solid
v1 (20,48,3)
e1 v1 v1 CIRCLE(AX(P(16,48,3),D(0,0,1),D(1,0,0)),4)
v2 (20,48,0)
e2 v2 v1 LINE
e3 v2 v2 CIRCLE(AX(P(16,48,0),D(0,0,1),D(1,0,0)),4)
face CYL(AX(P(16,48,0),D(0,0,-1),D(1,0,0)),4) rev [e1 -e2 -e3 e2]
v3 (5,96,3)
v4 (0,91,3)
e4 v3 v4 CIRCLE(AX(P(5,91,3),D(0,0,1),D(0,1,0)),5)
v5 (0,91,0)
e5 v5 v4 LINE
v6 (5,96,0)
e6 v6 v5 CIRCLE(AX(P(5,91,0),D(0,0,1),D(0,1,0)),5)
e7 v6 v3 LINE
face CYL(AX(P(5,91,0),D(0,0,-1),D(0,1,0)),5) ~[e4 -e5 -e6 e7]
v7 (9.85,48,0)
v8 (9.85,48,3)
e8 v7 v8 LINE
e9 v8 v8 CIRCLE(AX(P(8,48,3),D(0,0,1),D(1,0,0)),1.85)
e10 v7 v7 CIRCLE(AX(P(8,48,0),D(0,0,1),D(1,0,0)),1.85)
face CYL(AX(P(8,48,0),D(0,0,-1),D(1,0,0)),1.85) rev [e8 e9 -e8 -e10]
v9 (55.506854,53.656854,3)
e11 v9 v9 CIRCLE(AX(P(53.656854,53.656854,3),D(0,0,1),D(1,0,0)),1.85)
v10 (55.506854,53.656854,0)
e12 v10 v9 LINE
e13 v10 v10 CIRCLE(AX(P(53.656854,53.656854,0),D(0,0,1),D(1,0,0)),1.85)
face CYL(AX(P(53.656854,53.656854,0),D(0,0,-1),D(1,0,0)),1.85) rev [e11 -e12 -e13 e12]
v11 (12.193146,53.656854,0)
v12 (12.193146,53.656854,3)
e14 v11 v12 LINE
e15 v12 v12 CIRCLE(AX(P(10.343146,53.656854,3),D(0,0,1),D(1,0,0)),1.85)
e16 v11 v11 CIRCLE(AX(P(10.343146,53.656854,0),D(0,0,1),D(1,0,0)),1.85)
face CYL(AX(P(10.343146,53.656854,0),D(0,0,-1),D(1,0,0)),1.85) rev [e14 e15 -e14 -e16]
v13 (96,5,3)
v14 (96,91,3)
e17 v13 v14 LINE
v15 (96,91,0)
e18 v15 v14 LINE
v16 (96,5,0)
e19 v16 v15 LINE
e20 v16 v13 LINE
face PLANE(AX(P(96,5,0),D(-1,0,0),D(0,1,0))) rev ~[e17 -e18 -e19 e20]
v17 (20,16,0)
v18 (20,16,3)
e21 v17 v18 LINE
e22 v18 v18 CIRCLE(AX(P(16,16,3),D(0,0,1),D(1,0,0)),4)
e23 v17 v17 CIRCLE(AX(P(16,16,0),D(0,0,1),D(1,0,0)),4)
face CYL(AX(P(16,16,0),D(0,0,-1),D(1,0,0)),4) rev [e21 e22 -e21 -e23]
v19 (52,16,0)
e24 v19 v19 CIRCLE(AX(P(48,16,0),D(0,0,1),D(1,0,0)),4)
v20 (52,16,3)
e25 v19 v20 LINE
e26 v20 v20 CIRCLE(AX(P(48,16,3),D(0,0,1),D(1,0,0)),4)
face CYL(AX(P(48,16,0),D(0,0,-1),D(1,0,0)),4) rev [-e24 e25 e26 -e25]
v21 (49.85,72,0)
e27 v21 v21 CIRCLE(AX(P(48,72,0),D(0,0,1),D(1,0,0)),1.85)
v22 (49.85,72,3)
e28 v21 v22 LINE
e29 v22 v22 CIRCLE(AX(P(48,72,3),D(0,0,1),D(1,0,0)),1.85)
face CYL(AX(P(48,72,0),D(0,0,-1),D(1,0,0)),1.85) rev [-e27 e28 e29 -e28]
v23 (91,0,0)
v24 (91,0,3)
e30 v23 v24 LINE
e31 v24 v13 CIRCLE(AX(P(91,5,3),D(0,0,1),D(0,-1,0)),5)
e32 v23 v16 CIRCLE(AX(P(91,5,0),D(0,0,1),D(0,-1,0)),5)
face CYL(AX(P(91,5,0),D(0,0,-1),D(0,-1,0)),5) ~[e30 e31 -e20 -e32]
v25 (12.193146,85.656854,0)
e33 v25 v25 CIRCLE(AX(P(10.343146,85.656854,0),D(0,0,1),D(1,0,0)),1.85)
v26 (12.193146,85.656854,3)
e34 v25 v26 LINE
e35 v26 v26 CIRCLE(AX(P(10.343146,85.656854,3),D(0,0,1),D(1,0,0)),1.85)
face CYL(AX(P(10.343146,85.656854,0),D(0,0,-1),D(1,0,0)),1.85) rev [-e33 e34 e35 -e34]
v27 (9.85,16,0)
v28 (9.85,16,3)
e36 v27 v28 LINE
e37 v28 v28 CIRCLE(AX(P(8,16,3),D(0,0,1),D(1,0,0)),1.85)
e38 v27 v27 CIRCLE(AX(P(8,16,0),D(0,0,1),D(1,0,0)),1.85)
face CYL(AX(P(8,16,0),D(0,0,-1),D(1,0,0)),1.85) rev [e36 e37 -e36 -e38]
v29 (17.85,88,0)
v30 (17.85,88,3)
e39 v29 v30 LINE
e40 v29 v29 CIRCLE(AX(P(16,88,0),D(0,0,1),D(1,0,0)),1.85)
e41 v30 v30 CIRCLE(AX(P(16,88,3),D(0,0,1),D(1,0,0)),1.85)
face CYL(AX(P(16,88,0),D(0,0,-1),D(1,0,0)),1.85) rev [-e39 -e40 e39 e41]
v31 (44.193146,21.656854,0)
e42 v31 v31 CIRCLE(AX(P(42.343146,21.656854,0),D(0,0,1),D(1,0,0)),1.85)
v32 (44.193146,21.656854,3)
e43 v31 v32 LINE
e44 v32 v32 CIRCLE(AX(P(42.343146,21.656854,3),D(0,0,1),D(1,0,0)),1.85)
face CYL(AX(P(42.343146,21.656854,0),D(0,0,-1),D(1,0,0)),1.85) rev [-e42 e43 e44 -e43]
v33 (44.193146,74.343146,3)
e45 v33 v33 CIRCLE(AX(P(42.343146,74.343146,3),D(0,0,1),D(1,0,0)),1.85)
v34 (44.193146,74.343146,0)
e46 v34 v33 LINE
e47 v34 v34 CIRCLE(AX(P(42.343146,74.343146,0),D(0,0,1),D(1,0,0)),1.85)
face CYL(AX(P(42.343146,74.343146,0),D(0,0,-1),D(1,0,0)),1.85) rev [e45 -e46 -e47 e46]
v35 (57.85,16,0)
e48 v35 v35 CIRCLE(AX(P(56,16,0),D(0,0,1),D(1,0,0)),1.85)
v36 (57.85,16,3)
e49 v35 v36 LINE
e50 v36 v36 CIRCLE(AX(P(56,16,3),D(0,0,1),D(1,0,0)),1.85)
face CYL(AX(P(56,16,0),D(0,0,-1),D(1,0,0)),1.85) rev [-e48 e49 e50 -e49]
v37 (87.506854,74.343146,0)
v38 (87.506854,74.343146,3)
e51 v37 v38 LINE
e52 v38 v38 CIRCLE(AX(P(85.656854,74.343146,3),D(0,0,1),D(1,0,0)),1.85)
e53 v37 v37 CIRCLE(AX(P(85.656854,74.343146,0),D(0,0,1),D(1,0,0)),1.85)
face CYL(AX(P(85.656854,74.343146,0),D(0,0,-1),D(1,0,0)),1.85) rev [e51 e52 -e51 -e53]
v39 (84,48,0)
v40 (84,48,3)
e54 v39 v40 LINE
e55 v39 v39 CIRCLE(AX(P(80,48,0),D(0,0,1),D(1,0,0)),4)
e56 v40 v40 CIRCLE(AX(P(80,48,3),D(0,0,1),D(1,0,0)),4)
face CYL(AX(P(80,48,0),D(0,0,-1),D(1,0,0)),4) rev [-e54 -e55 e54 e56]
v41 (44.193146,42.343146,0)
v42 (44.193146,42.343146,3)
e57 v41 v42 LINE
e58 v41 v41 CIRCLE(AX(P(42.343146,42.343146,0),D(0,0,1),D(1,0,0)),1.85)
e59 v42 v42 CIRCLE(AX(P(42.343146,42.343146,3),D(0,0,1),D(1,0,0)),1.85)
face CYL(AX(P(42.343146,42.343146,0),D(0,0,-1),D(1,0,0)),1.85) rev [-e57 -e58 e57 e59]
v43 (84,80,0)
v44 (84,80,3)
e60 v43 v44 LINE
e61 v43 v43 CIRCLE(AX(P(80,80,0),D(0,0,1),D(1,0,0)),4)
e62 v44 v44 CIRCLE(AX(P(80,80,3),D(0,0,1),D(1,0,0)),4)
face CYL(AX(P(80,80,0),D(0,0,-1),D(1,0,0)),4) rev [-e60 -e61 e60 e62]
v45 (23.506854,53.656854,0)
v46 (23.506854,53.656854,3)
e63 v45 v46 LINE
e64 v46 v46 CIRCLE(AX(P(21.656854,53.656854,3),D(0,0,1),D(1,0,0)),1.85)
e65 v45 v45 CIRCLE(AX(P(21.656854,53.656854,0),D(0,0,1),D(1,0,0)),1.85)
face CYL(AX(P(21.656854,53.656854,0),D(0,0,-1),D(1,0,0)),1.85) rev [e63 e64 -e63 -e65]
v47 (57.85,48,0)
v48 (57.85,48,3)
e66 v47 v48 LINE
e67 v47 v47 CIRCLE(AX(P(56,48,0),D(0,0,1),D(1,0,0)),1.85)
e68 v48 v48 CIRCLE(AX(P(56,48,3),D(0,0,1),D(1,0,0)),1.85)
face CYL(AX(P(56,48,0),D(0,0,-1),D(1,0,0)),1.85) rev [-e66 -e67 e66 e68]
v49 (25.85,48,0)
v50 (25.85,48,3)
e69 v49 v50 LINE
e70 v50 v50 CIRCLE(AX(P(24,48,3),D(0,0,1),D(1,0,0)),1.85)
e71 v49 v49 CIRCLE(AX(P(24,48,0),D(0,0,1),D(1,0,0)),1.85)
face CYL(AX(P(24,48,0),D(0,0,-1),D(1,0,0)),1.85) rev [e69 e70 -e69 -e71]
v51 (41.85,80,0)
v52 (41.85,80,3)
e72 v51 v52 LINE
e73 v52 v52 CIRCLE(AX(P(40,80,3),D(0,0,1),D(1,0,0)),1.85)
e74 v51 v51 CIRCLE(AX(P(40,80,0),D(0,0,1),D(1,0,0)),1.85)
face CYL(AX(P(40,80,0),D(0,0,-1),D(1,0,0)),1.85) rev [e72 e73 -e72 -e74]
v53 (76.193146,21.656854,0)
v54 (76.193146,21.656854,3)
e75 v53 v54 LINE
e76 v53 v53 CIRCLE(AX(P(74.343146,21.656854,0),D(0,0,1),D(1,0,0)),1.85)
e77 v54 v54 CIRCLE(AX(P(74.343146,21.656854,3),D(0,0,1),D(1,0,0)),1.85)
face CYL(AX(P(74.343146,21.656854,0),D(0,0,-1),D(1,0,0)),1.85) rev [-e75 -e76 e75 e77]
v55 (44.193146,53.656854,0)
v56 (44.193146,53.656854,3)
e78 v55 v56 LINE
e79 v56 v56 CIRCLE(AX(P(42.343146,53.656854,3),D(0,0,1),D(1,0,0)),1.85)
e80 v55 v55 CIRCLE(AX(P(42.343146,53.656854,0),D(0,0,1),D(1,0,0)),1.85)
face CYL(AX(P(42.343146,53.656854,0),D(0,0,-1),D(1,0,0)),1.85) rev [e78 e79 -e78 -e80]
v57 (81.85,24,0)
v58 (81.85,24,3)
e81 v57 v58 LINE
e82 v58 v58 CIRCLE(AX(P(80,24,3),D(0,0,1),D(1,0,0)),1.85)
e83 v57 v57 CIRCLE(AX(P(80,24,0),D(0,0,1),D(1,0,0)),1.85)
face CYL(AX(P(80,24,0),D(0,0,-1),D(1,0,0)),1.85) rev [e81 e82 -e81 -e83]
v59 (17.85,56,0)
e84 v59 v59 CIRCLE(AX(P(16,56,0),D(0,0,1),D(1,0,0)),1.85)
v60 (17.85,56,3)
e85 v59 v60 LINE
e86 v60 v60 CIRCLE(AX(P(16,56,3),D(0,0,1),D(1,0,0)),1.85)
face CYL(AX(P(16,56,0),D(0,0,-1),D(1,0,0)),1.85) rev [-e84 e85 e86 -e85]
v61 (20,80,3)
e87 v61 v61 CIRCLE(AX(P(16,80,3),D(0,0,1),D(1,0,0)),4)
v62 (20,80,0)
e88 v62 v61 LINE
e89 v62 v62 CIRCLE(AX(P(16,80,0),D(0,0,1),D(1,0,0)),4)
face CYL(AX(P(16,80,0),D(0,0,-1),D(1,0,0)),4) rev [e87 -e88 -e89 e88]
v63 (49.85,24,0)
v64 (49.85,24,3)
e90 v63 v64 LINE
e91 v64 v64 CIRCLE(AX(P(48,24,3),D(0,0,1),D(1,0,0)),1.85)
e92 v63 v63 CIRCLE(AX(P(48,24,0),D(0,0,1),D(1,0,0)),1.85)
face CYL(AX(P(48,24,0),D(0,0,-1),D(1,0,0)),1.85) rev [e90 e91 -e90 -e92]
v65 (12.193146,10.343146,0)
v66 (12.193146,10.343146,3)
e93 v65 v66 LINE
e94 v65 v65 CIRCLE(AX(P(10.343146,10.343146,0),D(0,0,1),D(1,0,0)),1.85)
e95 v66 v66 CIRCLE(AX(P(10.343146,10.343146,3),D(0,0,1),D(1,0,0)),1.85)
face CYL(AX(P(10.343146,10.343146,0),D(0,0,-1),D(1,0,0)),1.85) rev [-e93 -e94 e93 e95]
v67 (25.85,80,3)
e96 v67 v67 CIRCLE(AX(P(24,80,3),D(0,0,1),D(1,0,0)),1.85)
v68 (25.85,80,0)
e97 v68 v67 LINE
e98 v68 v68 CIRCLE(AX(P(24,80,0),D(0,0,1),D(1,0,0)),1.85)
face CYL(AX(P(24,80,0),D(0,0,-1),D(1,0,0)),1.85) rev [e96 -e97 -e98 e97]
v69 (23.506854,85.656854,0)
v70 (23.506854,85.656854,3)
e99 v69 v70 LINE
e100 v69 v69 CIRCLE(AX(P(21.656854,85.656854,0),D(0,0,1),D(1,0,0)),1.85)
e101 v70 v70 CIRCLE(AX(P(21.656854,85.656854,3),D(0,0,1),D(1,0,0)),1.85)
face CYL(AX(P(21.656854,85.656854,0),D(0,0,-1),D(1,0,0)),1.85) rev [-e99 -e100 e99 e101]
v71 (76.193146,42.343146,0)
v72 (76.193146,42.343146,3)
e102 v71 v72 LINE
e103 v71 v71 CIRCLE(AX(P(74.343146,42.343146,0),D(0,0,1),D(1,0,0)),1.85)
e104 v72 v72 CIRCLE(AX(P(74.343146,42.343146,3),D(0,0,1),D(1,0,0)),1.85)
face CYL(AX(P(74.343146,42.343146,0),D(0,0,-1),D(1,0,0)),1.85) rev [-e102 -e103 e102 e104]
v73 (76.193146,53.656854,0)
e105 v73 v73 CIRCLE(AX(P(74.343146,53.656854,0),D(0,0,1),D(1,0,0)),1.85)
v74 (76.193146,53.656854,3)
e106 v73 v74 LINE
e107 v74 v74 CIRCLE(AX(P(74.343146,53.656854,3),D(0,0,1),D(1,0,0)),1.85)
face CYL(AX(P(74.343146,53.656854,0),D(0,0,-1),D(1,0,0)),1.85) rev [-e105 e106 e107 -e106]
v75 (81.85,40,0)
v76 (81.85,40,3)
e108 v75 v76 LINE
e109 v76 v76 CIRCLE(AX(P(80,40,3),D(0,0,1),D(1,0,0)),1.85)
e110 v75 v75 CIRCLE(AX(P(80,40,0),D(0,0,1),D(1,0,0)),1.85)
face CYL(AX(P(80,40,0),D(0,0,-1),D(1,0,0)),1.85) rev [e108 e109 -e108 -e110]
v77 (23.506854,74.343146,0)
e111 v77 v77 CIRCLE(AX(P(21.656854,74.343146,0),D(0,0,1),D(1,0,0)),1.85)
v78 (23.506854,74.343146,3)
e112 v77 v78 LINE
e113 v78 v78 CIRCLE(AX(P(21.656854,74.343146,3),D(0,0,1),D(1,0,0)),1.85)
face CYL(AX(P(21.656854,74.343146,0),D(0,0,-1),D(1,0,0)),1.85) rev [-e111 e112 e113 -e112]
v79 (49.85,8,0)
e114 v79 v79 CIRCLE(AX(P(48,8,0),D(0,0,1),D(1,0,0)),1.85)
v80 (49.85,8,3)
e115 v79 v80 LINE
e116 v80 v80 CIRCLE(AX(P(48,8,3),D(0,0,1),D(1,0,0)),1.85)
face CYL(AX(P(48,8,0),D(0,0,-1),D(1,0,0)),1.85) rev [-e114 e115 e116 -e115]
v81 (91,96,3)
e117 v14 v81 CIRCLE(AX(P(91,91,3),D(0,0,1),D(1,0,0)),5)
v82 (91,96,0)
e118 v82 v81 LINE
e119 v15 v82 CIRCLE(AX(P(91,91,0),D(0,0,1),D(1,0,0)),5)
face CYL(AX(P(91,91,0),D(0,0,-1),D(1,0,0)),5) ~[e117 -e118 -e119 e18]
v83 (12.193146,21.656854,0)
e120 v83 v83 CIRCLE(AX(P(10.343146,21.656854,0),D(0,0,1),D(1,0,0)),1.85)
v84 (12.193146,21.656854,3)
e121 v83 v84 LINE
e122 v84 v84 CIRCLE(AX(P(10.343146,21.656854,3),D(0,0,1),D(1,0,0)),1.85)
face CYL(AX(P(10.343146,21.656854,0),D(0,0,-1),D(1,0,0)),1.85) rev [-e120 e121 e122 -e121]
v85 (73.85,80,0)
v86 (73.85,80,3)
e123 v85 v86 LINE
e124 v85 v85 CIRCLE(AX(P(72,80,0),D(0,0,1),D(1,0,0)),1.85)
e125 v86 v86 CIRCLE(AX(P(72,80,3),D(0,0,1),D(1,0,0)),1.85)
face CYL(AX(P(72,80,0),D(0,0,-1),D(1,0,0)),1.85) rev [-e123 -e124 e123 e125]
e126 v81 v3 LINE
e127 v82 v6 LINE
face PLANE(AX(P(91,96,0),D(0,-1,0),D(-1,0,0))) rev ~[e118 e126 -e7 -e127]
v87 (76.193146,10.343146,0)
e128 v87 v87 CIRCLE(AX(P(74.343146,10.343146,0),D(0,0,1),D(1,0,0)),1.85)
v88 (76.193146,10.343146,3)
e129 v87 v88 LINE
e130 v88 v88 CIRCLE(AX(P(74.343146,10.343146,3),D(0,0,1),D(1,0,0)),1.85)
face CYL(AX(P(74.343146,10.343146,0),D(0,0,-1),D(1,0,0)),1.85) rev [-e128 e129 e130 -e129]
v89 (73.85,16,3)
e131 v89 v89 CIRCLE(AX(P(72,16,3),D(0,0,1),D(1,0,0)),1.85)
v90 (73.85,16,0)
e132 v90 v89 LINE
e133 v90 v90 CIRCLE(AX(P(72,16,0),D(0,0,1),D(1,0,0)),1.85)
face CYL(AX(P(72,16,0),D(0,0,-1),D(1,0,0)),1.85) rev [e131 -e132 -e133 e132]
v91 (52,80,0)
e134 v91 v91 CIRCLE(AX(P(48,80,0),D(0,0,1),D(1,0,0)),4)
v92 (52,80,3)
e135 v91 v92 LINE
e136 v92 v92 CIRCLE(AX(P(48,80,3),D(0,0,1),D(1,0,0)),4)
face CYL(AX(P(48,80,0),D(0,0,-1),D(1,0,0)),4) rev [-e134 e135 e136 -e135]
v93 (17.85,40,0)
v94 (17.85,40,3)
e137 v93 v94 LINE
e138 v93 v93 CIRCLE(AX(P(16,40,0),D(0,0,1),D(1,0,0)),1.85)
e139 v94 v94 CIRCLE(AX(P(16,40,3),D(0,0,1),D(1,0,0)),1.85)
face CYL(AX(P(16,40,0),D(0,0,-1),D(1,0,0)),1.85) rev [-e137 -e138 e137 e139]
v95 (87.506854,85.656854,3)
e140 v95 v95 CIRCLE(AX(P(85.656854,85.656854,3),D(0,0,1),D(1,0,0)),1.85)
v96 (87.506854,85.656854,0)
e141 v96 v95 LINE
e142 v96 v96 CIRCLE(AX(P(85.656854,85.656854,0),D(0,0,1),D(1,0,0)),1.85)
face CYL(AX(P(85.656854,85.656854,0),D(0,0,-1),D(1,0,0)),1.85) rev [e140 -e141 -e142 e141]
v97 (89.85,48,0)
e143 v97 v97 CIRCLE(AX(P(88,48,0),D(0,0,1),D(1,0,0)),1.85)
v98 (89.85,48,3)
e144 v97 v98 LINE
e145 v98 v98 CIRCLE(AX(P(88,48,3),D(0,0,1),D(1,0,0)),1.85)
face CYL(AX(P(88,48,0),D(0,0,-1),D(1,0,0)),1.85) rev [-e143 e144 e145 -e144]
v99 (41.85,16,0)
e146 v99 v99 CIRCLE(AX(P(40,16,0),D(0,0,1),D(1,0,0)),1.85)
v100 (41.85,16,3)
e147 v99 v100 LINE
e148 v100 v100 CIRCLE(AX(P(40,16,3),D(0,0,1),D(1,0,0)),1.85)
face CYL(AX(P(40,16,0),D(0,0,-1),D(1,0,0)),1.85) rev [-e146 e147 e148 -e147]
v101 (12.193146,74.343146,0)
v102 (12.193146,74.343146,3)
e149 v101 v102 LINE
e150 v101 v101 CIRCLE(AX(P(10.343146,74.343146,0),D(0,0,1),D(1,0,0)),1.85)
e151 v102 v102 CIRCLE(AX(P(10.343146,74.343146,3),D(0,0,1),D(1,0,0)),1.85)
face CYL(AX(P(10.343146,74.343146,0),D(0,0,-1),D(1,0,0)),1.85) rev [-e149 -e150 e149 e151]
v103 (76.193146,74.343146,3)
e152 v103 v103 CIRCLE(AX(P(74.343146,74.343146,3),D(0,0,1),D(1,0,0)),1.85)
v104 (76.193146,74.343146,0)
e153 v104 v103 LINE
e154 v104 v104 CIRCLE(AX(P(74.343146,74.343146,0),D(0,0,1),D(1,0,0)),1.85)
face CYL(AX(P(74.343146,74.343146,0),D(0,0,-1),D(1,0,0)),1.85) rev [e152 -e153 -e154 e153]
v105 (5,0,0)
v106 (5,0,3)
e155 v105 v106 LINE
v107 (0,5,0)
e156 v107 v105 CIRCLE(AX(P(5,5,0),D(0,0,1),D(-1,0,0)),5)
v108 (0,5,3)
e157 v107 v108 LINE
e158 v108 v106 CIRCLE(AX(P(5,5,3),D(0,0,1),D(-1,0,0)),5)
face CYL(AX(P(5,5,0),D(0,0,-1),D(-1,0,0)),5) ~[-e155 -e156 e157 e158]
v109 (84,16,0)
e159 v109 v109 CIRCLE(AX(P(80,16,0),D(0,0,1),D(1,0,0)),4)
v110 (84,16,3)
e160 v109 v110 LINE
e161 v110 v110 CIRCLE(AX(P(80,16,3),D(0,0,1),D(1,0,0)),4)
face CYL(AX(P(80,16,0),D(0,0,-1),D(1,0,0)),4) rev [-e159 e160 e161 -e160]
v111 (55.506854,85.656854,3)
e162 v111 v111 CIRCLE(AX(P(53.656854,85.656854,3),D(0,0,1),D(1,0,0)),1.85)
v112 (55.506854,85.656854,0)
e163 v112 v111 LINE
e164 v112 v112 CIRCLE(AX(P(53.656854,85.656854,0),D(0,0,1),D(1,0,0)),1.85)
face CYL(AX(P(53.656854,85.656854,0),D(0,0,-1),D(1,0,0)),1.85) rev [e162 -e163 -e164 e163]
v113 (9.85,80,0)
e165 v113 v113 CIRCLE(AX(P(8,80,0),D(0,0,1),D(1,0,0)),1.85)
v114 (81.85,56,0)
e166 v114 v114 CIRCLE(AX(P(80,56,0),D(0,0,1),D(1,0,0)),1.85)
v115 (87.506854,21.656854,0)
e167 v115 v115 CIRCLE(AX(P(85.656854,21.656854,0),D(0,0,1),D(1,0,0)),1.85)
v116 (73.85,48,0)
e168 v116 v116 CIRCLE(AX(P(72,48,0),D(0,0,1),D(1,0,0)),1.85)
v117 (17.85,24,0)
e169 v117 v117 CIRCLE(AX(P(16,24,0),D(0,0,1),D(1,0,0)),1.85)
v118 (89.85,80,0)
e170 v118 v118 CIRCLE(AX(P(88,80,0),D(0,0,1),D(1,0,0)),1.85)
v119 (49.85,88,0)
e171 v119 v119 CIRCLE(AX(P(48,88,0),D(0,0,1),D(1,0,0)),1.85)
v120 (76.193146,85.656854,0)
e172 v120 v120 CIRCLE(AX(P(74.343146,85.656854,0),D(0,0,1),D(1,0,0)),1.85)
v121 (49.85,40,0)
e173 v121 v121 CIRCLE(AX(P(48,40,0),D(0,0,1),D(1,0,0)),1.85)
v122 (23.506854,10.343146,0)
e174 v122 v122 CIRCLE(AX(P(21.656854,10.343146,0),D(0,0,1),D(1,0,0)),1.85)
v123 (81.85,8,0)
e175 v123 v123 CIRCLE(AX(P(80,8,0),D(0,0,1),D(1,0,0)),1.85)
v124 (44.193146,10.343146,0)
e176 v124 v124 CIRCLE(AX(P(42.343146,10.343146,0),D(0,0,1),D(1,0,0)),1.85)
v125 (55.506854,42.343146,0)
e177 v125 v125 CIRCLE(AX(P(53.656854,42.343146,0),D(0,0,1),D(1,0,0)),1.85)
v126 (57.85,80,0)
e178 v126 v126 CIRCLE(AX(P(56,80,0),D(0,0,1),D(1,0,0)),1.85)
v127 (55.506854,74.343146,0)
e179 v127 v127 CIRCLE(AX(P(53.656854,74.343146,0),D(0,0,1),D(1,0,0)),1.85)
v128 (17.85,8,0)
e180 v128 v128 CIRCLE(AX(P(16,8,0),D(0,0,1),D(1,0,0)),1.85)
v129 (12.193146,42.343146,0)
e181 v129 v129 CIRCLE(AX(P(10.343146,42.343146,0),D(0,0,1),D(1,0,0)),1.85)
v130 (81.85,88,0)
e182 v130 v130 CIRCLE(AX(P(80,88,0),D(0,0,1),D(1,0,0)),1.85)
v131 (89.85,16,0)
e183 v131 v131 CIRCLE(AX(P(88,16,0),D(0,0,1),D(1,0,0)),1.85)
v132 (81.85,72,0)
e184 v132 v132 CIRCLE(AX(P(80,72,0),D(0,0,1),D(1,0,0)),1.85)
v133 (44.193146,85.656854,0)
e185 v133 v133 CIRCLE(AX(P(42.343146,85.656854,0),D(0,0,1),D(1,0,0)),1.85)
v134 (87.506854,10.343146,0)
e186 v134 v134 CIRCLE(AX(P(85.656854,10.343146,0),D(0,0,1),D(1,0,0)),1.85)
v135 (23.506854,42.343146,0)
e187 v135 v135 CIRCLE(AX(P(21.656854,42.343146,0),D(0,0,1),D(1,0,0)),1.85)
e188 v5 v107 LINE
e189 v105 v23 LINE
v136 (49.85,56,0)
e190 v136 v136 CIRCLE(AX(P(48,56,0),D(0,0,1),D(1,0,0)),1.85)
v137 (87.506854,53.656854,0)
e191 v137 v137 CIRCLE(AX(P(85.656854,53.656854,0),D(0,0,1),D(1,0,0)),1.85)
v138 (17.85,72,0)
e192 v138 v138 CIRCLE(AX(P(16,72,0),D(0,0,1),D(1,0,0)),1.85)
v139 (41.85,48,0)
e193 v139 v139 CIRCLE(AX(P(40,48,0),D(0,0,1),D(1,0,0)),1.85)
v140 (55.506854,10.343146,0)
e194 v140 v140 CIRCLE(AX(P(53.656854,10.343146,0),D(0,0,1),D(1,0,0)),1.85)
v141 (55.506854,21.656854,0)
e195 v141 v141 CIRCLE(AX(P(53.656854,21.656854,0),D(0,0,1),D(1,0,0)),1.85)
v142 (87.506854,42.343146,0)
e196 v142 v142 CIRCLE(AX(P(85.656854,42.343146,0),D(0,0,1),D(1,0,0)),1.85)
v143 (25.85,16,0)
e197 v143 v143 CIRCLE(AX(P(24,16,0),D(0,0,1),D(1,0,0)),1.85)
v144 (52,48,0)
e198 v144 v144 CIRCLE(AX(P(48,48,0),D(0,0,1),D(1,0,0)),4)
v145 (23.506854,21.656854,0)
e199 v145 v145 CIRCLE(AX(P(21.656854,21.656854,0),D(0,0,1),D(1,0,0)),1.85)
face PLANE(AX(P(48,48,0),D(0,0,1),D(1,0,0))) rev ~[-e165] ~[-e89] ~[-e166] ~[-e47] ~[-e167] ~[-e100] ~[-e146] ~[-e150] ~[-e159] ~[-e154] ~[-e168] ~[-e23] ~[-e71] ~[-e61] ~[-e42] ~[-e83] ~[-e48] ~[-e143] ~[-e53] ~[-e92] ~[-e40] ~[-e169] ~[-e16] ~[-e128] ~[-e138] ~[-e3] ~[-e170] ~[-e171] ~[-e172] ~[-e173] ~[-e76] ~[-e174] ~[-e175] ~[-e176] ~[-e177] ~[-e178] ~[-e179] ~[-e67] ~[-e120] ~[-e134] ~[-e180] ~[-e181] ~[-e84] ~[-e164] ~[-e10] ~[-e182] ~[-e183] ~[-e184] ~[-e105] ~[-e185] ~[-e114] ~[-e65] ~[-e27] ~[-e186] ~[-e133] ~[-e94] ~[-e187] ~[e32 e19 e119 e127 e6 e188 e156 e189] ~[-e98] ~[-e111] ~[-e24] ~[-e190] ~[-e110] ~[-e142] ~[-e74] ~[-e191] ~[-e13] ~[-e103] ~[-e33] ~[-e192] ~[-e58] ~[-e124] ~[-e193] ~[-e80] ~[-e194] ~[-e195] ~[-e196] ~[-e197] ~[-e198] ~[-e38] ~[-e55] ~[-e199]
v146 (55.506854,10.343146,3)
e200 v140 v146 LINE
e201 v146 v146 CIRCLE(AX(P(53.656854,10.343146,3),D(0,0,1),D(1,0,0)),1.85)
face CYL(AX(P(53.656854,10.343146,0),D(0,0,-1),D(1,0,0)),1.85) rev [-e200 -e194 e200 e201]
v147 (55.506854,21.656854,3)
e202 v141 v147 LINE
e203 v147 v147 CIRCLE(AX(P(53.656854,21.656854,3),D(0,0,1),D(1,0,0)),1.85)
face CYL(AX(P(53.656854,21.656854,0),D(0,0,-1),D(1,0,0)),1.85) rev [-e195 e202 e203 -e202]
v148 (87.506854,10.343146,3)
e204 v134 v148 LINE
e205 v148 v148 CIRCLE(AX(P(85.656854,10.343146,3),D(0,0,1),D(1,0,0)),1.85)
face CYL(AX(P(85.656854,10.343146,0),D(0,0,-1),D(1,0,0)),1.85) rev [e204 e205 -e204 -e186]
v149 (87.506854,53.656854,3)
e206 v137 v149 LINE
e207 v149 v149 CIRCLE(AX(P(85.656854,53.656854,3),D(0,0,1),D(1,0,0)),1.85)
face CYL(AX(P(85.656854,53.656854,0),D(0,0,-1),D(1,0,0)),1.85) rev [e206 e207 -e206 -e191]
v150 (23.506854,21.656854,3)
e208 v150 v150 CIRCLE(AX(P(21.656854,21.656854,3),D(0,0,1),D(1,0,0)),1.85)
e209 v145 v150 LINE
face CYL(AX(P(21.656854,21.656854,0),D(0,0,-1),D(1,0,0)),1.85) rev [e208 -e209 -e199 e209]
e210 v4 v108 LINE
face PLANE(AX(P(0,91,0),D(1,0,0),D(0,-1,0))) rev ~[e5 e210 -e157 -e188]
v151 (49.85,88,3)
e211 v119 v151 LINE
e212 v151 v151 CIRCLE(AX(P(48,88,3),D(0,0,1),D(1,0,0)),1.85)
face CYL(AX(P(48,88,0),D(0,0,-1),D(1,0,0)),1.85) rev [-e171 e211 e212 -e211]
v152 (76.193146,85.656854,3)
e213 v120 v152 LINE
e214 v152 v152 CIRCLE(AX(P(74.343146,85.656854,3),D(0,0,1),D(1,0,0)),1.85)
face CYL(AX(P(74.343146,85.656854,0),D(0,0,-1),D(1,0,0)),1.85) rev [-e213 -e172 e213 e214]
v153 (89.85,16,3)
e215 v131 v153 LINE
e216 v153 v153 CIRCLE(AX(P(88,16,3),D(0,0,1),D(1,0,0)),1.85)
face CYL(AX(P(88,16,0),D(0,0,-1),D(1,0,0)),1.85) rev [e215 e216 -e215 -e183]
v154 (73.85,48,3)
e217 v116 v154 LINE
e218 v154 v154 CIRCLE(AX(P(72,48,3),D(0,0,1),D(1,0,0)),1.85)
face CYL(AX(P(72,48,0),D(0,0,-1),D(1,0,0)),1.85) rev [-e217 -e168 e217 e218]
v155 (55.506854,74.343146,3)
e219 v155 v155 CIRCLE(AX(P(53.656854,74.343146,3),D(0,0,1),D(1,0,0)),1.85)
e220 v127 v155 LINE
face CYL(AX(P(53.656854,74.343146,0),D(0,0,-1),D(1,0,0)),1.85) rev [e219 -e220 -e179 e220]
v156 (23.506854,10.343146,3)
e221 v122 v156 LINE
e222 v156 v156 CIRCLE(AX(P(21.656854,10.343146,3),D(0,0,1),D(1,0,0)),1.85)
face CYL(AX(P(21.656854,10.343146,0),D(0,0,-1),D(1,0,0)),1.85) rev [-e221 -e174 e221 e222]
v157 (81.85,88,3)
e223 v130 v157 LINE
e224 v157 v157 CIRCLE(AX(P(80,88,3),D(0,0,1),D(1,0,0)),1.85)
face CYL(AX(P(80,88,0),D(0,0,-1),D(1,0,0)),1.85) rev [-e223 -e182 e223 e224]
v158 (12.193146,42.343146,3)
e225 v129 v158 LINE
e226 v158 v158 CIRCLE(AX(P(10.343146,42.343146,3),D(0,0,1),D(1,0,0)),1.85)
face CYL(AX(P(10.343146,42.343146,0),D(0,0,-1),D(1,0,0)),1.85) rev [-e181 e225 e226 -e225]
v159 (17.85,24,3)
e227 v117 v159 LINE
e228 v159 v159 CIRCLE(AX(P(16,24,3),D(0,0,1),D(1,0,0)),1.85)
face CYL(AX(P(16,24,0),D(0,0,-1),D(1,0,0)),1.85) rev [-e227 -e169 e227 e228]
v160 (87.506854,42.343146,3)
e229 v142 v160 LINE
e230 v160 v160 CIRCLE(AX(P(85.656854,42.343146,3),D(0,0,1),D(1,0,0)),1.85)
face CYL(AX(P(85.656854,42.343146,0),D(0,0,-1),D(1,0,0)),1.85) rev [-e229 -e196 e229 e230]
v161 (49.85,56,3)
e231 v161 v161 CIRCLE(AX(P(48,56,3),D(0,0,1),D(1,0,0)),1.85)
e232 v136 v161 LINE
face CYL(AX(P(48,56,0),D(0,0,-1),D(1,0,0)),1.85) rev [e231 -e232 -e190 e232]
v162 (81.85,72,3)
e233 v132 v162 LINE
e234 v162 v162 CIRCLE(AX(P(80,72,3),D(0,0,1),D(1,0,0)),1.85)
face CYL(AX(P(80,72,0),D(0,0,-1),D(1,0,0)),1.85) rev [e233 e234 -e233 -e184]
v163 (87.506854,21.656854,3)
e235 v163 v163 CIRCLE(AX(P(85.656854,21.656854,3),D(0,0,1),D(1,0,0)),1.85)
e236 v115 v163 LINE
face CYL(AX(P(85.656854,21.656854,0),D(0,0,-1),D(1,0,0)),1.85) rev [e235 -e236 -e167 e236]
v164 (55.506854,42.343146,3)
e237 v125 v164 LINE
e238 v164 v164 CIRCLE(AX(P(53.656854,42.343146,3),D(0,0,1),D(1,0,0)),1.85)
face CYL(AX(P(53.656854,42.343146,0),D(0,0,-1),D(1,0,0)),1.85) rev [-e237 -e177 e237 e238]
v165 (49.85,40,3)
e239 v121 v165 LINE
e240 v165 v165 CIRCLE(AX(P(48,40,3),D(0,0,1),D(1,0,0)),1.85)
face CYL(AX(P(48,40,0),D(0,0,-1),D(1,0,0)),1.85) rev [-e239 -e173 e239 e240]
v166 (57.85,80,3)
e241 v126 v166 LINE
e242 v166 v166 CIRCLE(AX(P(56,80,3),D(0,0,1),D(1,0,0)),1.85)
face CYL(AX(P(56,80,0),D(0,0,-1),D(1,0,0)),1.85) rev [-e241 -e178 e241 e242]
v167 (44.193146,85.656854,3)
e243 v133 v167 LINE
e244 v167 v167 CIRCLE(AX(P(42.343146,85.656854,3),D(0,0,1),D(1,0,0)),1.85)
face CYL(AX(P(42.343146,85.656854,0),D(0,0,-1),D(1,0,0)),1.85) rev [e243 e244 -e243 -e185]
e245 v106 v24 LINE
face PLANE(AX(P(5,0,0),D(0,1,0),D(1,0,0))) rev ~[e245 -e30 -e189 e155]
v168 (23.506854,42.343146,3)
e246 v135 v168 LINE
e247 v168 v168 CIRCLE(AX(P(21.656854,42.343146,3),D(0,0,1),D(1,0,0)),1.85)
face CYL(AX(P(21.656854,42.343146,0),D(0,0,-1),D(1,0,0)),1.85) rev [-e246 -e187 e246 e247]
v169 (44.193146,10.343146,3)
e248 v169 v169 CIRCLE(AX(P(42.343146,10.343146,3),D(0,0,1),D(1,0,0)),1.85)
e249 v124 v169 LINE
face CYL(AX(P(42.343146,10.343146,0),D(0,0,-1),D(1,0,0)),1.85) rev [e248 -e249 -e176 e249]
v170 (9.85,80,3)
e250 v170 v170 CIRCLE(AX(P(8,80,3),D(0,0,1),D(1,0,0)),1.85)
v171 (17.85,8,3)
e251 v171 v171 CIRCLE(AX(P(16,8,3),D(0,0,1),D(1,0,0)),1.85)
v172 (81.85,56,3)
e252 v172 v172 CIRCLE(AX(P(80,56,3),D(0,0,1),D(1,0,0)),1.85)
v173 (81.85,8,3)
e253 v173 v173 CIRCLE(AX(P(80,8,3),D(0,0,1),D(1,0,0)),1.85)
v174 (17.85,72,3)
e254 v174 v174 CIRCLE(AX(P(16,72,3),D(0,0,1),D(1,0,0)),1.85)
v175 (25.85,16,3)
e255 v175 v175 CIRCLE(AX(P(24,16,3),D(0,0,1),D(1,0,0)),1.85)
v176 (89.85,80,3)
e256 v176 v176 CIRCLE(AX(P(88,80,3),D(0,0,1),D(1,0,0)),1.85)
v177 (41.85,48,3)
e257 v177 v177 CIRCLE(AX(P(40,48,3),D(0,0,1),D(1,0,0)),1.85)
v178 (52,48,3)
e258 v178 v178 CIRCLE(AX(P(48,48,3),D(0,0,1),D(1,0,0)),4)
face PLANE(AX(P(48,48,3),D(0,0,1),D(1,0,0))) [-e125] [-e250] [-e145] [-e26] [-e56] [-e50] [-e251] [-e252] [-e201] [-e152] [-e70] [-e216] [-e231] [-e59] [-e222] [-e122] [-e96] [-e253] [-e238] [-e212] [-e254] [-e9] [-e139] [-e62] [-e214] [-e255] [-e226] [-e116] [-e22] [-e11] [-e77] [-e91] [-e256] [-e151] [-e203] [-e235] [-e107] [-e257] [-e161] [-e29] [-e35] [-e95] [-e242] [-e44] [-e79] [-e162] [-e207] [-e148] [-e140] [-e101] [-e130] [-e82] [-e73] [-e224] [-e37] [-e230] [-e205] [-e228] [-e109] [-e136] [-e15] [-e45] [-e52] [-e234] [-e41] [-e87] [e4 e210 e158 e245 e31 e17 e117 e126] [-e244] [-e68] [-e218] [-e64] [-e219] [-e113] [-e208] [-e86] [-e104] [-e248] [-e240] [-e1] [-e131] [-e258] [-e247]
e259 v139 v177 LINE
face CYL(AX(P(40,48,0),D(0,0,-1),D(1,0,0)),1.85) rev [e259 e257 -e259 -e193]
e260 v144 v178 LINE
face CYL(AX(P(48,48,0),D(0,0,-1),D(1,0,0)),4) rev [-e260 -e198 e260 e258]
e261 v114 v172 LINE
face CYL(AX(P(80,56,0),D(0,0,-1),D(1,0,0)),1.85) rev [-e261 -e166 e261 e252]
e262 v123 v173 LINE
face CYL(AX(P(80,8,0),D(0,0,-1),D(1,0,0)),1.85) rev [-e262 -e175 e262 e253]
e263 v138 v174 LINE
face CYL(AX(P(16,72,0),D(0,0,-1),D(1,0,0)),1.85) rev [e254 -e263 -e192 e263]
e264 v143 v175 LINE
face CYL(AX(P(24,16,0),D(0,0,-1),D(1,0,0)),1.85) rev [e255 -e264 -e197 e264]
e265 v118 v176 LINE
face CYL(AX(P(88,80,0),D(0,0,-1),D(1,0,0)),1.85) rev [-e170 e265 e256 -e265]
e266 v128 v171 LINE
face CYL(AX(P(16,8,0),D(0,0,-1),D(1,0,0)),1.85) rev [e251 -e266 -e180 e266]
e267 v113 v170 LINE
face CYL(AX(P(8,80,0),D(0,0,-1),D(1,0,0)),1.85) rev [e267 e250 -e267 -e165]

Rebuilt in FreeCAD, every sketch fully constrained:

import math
import FreeCAD as App
import Part
import Sketcher

V = App.Vector
Q = App.Units.Quantity

doc = App.newDocument("Part")
body = doc.addObject("PartDesign::Body", "Body")

# Sketch on XY plane
sketch1 = body.newObject("Sketcher::SketchObject", "Sketch")
sketch1.AttachmentSupport = (doc.getObject("XY_Plane"), [""])
sketch1.MapMode = "FlatFace"
sketch1.addGeometry([
    Part.LineSegment(V(91, 96, 0), V(5, 96, 0)),  # 0
    Part.ArcOfCircle(Part.Circle(V(5, 91, 0), V(0, 0, 1), 5), math.radians(90), math.radians(180)),  # 1
    Part.LineSegment(V(0, 91, 0), V(0, 5, 0)),  # 2
    Part.ArcOfCircle(Part.Circle(V(5, 5, 0), V(0, 0, 1), 5), math.radians(180), math.radians(270)),  # 3
    Part.LineSegment(V(5, 0, 0), V(91, 0, 0)),  # 4
    Part.ArcOfCircle(Part.Circle(V(91, 5, 0), V(0, 0, 1), 5), math.radians(-90), math.radians(0)),  # 5
    Part.LineSegment(V(96, 5, 0), V(96, 91, 0)),  # 6
    Part.ArcOfCircle(Part.Circle(V(91, 91, 0), V(0, 0, 1), 5), math.radians(0), math.radians(90)),  # 7
    Part.Circle(V(10.3, 10.3, 0), V(0, 0, 1), 1.9),  # 8
    Part.Circle(V(16, 8, 0), V(0, 0, 1), 1.9),  # 9
    Part.Circle(V(8, 16, 0), V(0, 0, 1), 1.9),  # 10
    Part.Circle(V(16, 16, 0), V(0, 0, 1), 4),  # 11
    Part.Circle(V(21.7, 10.3, 0), V(0, 0, 1), 1.9),  # 12
    Part.Circle(V(24, 16, 0), V(0, 0, 1), 1.9),  # 13
    Part.Circle(V(10.3, 21.7, 0), V(0, 0, 1), 1.9),  # 14
    Part.Circle(V(16, 24, 0), V(0, 0, 1), 1.9),  # 15
    Part.Circle(V(21.7, 21.7, 0), V(0, 0, 1), 1.9),  # 16
    Part.Circle(V(42.3, 10.3, 0), V(0, 0, 1), 1.9),  # 17
    Part.Circle(V(40, 16, 0), V(0, 0, 1), 1.9),  # 18
    Part.Circle(V(42.3, 21.7, 0), V(0, 0, 1), 1.9),  # 19
    Part.Circle(V(10.3, 42.3, 0), V(0, 0, 1), 1.9),  # 20
    Part.Circle(V(16, 40, 0), V(0, 0, 1), 1.9),  # 21
    Part.Circle(V(8, 48, 0), V(0, 0, 1), 1.9),  # 22
    Part.Circle(V(16, 48, 0), V(0, 0, 1), 4),  # 23
    Part.Circle(V(21.7, 42.3, 0), V(0, 0, 1), 1.9),  # 24
    Part.Circle(V(24, 48, 0), V(0, 0, 1), 1.9),  # 25
    Part.Circle(V(42.3, 42.3, 0), V(0, 0, 1), 1.9),  # 26
    Part.Circle(V(40, 48, 0), V(0, 0, 1), 1.9),  # 27
    Part.Circle(V(48, 8, 0), V(0, 0, 1), 1.9),  # 28
    Part.Circle(V(53.7, 10.3, 0), V(0, 0, 1), 1.9),  # 29
    Part.Circle(V(48, 16, 0), V(0, 0, 1), 4),  # 30
    Part.Circle(V(56, 16, 0), V(0, 0, 1), 1.9),  # 31
    Part.Circle(V(53.7, 21.7, 0), V(0, 0, 1), 1.9),  # 32
    Part.Circle(V(48, 24, 0), V(0, 0, 1), 1.9),  # 33
    Part.Circle(V(74.3, 10.3, 0), V(0, 0, 1), 1.9),  # 34
    Part.Circle(V(72, 16, 0), V(0, 0, 1), 1.9),  # 35
    Part.Circle(V(80, 8, 0), V(0, 0, 1), 1.9),  # 36
    Part.Circle(V(85.7, 10.3, 0), V(0, 0, 1), 1.9),  # 37
    Part.Circle(V(80, 16, 0), V(0, 0, 1), 4),  # 38
    Part.Circle(V(88, 16, 0), V(0, 0, 1), 1.9),  # 39
    Part.Circle(V(74.3, 21.7, 0), V(0, 0, 1), 1.9),  # 40
    Part.Circle(V(85.7, 21.7, 0), V(0, 0, 1), 1.9),  # 41
    Part.Circle(V(80, 24, 0), V(0, 0, 1), 1.9),  # 42
    Part.Circle(V(48, 40, 0), V(0, 0, 1), 1.9),  # 43
    Part.Circle(V(53.7, 42.3, 0), V(0, 0, 1), 1.9),  # 44
    Part.Circle(V(48, 48, 0), V(0, 0, 1), 4),  # 45
    Part.Circle(V(56, 48, 0), V(0, 0, 1), 1.9),  # 46
    Part.Circle(V(74.3, 42.3, 0), V(0, 0, 1), 1.9),  # 47
    Part.Circle(V(72, 48, 0), V(0, 0, 1), 1.9),  # 48
    Part.Circle(V(80, 40, 0), V(0, 0, 1), 1.9),  # 49
    Part.Circle(V(85.7, 42.3, 0), V(0, 0, 1), 1.9),  # 50
    Part.Circle(V(80, 48, 0), V(0, 0, 1), 4),  # 51
    Part.Circle(V(88, 48, 0), V(0, 0, 1), 1.9),  # 52
    Part.Circle(V(10.3, 53.7, 0), V(0, 0, 1), 1.9),  # 53
    Part.Circle(V(16, 56, 0), V(0, 0, 1), 1.9),  # 54
    Part.Circle(V(21.7, 53.7, 0), V(0, 0, 1), 1.9),  # 55
    Part.Circle(V(42.3, 53.7, 0), V(0, 0, 1), 1.9),  # 56
    Part.Circle(V(16, 72, 0), V(0, 0, 1), 1.9),  # 57
    Part.Circle(V(10.3, 74.3, 0), V(0, 0, 1), 1.9),  # 58
    Part.Circle(V(21.7, 74.3, 0), V(0, 0, 1), 1.9),  # 59
    Part.Circle(V(8, 80, 0), V(0, 0, 1), 1.9),  # 60
    Part.Circle(V(16, 80, 0), V(0, 0, 1), 4),  # 61
    Part.Circle(V(10.3, 85.7, 0), V(0, 0, 1), 1.9),  # 62
    Part.Circle(V(16, 88, 0), V(0, 0, 1), 1.9),  # 63
    Part.Circle(V(24, 80, 0), V(0, 0, 1), 1.9),  # 64
    Part.Circle(V(21.7, 85.7, 0), V(0, 0, 1), 1.9),  # 65
    Part.Circle(V(42.3, 74.3, 0), V(0, 0, 1), 1.9),  # 66
    Part.Circle(V(40, 80, 0), V(0, 0, 1), 1.9),  # 67
    Part.Circle(V(42.3, 85.7, 0), V(0, 0, 1), 1.9),  # 68
    Part.Circle(V(48, 56, 0), V(0, 0, 1), 1.9),  # 69
    Part.Circle(V(53.7, 53.7, 0), V(0, 0, 1), 1.9),  # 70
    Part.Circle(V(74.3, 53.7, 0), V(0, 0, 1), 1.9),  # 71
    Part.Circle(V(80, 56, 0), V(0, 0, 1), 1.9),  # 72
    Part.Circle(V(85.7, 53.7, 0), V(0, 0, 1), 1.9),  # 73
    Part.Circle(V(48, 72, 0), V(0, 0, 1), 1.9),  # 74
    Part.Circle(V(53.7, 74.3, 0), V(0, 0, 1), 1.9),  # 75
    Part.Circle(V(48, 80, 0), V(0, 0, 1), 4),  # 76
    Part.Circle(V(56, 80, 0), V(0, 0, 1), 1.9),  # 77
    Part.Circle(V(48, 88, 0), V(0, 0, 1), 1.9),  # 78
    Part.Circle(V(53.7, 85.7, 0), V(0, 0, 1), 1.9),  # 79
    Part.Circle(V(74.3, 74.3, 0), V(0, 0, 1), 1.9),  # 80
    Part.Circle(V(80, 72, 0), V(0, 0, 1), 1.9),  # 81
    Part.Circle(V(85.7, 74.3, 0), V(0, 0, 1), 1.9),  # 82
    Part.Circle(V(72, 80, 0), V(0, 0, 1), 1.9),  # 83
    Part.Circle(V(74.3, 85.7, 0), V(0, 0, 1), 1.9),  # 84
    Part.Circle(V(80, 80, 0), V(0, 0, 1), 4),  # 85
    Part.Circle(V(88, 80, 0), V(0, 0, 1), 1.9),  # 86
    Part.Circle(V(80, 88, 0), V(0, 0, 1), 1.9),  # 87
    Part.Circle(V(85.7, 85.7, 0), V(0, 0, 1), 1.9),  # 88
], False)
sketch1.addConstraint([
    Sketcher.Constraint("Tangent", 0, 2, 1, 1),
    Sketcher.Constraint("Tangent", 1, 2, 2, 1),
    Sketcher.Constraint("Tangent", 2, 2, 3, 1),
    Sketcher.Constraint("Tangent", 3, 2, 4, 1),
    Sketcher.Constraint("Tangent", 4, 2, 5, 1),
    Sketcher.Constraint("Tangent", 5, 2, 6, 1),
    Sketcher.Constraint("Tangent", 6, 2, 7, 1),
    Sketcher.Constraint("Tangent", 7, 2, 0, 1),
    Sketcher.Constraint("Horizontal", 0),
    Sketcher.Constraint("Vertical", 2),
    Sketcher.Constraint("Horizontal", 4),
    Sketcher.Constraint("Vertical", 6),
    Sketcher.Constraint("Equal", 1, 3),
    Sketcher.Constraint("Equal", 3, 5),
    Sketcher.Constraint("Equal", 5, 7),
    Sketcher.Constraint("Equal", 8, 9),
    Sketcher.Constraint("Equal", 9, 10),
    Sketcher.Constraint("Equal", 10, 12),
    Sketcher.Constraint("Equal", 12, 13),
    Sketcher.Constraint("Equal", 13, 14),
    Sketcher.Constraint("Equal", 14, 15),
    Sketcher.Constraint("Equal", 15, 16),
    Sketcher.Constraint("Equal", 16, 17),
    Sketcher.Constraint("Equal", 17, 18),
    Sketcher.Constraint("Equal", 18, 19),
    Sketcher.Constraint("Equal", 19, 20),
    Sketcher.Constraint("Equal", 20, 21),
    Sketcher.Constraint("Equal", 21, 22),
    Sketcher.Constraint("Equal", 11, 23),
    Sketcher.Constraint("Equal", 22, 24),
    Sketcher.Constraint("Equal", 24, 25),
    Sketcher.Constraint("Equal", 25, 26),
    Sketcher.Constraint("Equal", 26, 27),
    Sketcher.Constraint("Equal", 27, 28),
    Sketcher.Constraint("Equal", 28, 29),
    Sketcher.Constraint("Equal", 23, 30),
    Sketcher.Constraint("Equal", 29, 31),
    Sketcher.Constraint("Equal", 31, 32),
    Sketcher.Constraint("Equal", 32, 33),
    Sketcher.Constraint("Equal", 33, 34),
    Sketcher.Constraint("Equal", 34, 35),
    Sketcher.Constraint("Equal", 35, 36),
    Sketcher.Constraint("Equal", 36, 37),
    Sketcher.Constraint("Equal", 30, 38),
    Sketcher.Constraint("Equal", 37, 39),
    Sketcher.Constraint("Equal", 39, 40),
    Sketcher.Constraint("Equal", 40, 41),
    Sketcher.Constraint("Equal", 41, 42),
    Sketcher.Constraint("Equal", 42, 43),
    Sketcher.Constraint("Equal", 43, 44),
    Sketcher.Constraint("Equal", 38, 45),
    Sketcher.Constraint("Equal", 44, 46),
    Sketcher.Constraint("Equal", 46, 47),
    Sketcher.Constraint("Equal", 47, 48),
    Sketcher.Constraint("Equal", 48, 49),
    Sketcher.Constraint("Equal", 49, 50),
    Sketcher.Constraint("Equal", 45, 51),
    Sketcher.Constraint("Equal", 50, 52),
    Sketcher.Constraint("Equal", 52, 53),
    Sketcher.Constraint("Equal", 53, 54),
    Sketcher.Constraint("Equal", 54, 55),
    Sketcher.Constraint("Equal", 55, 56),
    Sketcher.Constraint("Equal", 56, 57),
    Sketcher.Constraint("Equal", 57, 58),
    Sketcher.Constraint("Equal", 58, 59),
    Sketcher.Constraint("Equal", 59, 60),
    Sketcher.Constraint("Equal", 51, 61),
    Sketcher.Constraint("Equal", 60, 62),
    Sketcher.Constraint("Equal", 62, 63),
    Sketcher.Constraint("Equal", 63, 64),
    Sketcher.Constraint("Equal", 64, 65),
    Sketcher.Constraint("Equal", 65, 66),
    Sketcher.Constraint("Equal", 66, 67),
    Sketcher.Constraint("Equal", 67, 68),
    Sketcher.Constraint("Equal", 68, 69),
    Sketcher.Constraint("Equal", 69, 70),
    Sketcher.Constraint("Equal", 70, 71),
    Sketcher.Constraint("Equal", 71, 72),
    Sketcher.Constraint("Equal", 72, 73),
    Sketcher.Constraint("Equal", 73, 74),
    Sketcher.Constraint("Equal", 74, 75),
    Sketcher.Constraint("Equal", 61, 76),
    Sketcher.Constraint("Equal", 75, 77),
    Sketcher.Constraint("Equal", 77, 78),
    Sketcher.Constraint("Equal", 78, 79),
    Sketcher.Constraint("Equal", 79, 80),
    Sketcher.Constraint("Equal", 80, 81),
    Sketcher.Constraint("Equal", 81, 82),
    Sketcher.Constraint("Equal", 82, 83),
    Sketcher.Constraint("Equal", 83, 84),
    Sketcher.Constraint("Equal", 76, 85),
    Sketcher.Constraint("Equal", 84, 86),
    Sketcher.Constraint("Equal", 86, 87),
    Sketcher.Constraint("Equal", 87, 88),
    Sketcher.Constraint("PointOnObject", 1, 2, -2),
    Sketcher.Constraint("PointOnObject", 3, 2, -1),
    Sketcher.Constraint("Horizontal", 10, 3, 11, 3),
    Sketcher.Constraint("Horizontal", 8, 3, 12, 3),
    Sketcher.Constraint("Horizontal", 11, 3, 13, 3),
    Sketcher.Constraint("Horizontal", 14, 3, 16, 3),
    Sketcher.Constraint("Horizontal", 12, 3, 17, 3),
    Sketcher.Constraint("Horizontal", 13, 3, 18, 3),
    Sketcher.Constraint("Horizontal", 16, 3, 19, 3),
    Sketcher.Constraint("Horizontal", 22, 3, 23, 3),
    Sketcher.Constraint("Horizontal", 20, 3, 24, 3),
    Sketcher.Constraint("Horizontal", 23, 3, 25, 3),
    Sketcher.Constraint("Horizontal", 24, 3, 26, 3),
    Sketcher.Constraint("Horizontal", 25, 3, 27, 3),
    Sketcher.Constraint("Horizontal", 9, 3, 28, 3),
    Sketcher.Constraint("Horizontal", 17, 3, 29, 3),
    Sketcher.Constraint("Horizontal", 18, 3, 30, 3),
    Sketcher.Constraint("Horizontal", 30, 3, 31, 3),
    Sketcher.Constraint("Horizontal", 19, 3, 32, 3),
    Sketcher.Constraint("Horizontal", 15, 3, 33, 3),
    Sketcher.Constraint("Horizontal", 29, 3, 34, 3),
    Sketcher.Constraint("Horizontal", 31, 3, 35, 3),
    Sketcher.Constraint("Horizontal", 28, 3, 36, 3),
    Sketcher.Constraint("Horizontal", 34, 3, 37, 3),
    Sketcher.Constraint("Horizontal", 35, 3, 38, 3),
    Sketcher.Constraint("Horizontal", 38, 3, 39, 3),
    Sketcher.Constraint("Horizontal", 32, 3, 40, 3),
    Sketcher.Constraint("Horizontal", 40, 3, 41, 3),
    Sketcher.Constraint("Horizontal", 33, 3, 42, 3),
    Sketcher.Constraint("Horizontal", 21, 3, 43, 3),
    Sketcher.Constraint("Horizontal", 26, 3, 44, 3),
    Sketcher.Constraint("Horizontal", 27, 3, 45, 3),
    Sketcher.Constraint("Horizontal", 45, 3, 46, 3),
    Sketcher.Constraint("Horizontal", 44, 3, 47, 3),
    Sketcher.Constraint("Horizontal", 46, 3, 48, 3),
    Sketcher.Constraint("Horizontal", 43, 3, 49, 3),
    Sketcher.Constraint("Horizontal", 47, 3, 50, 3),
    Sketcher.Constraint("Horizontal", 48, 3, 51, 3),
    Sketcher.Constraint("Horizontal", 51, 3, 52, 3),
    Sketcher.Constraint("Horizontal", 53, 3, 55, 3),
    Sketcher.Constraint("Horizontal", 55, 3, 56, 3),
    Sketcher.Constraint("Horizontal", 58, 3, 59, 3),
    Sketcher.Constraint("Horizontal", 60, 3, 61, 3),
    Sketcher.Constraint("Horizontal", 61, 3, 64, 3),
    Sketcher.Constraint("Horizontal", 62, 3, 65, 3),
    Sketcher.Constraint("Horizontal", 59, 3, 66, 3),
    Sketcher.Constraint("Horizontal", 64, 3, 67, 3),
    Sketcher.Constraint("Horizontal", 65, 3, 68, 3),
    Sketcher.Constraint("Horizontal", 54, 3, 69, 3),
    Sketcher.Constraint("Horizontal", 56, 3, 70, 3),
    Sketcher.Constraint("Horizontal", 70, 3, 71, 3),
    Sketcher.Constraint("Horizontal", 69, 3, 72, 3),
    Sketcher.Constraint("Horizontal", 71, 3, 73, 3),
    Sketcher.Constraint("Horizontal", 57, 3, 74, 3),
    Sketcher.Constraint("Horizontal", 66, 3, 75, 3),
    Sketcher.Constraint("Horizontal", 67, 3, 76, 3),
    Sketcher.Constraint("Horizontal", 76, 3, 77, 3),
    Sketcher.Constraint("Horizontal", 63, 3, 78, 3),
    Sketcher.Constraint("Horizontal", 68, 3, 79, 3),
    Sketcher.Constraint("Horizontal", 75, 3, 80, 3),
    Sketcher.Constraint("Horizontal", 74, 3, 81, 3),
    Sketcher.Constraint("Horizontal", 80, 3, 82, 3),
    Sketcher.Constraint("Horizontal", 77, 3, 83, 3),
    Sketcher.Constraint("Horizontal", 79, 3, 84, 3),
    Sketcher.Constraint("Horizontal", 83, 3, 85, 3),
    Sketcher.Constraint("Horizontal", 85, 3, 86, 3),
    Sketcher.Constraint("Horizontal", 78, 3, 87, 3),
    Sketcher.Constraint("Horizontal", 84, 3, 88, 3),
    Sketcher.Constraint("Vertical", 9, 3, 11, 3),
    Sketcher.Constraint("Vertical", 8, 3, 14, 3),
    Sketcher.Constraint("Vertical", 11, 3, 15, 3),
    Sketcher.Constraint("Vertical", 12, 3, 16, 3),
    Sketcher.Constraint("Vertical", 17, 3, 19, 3),
    Sketcher.Constraint("Vertical", 14, 3, 20, 3),
    Sketcher.Constraint("Vertical", 15, 3, 21, 3),
    Sketcher.Constraint("Vertical", 10, 3, 22, 3),
    Sketcher.Constraint("Vertical", 21, 3, 23, 3),
    Sketcher.Constraint("Vertical", 16, 3, 24, 3),
    Sketcher.Constraint("Vertical", 13, 3, 25, 3),
    Sketcher.Constraint("Vertical", 19, 3, 26, 3),
    Sketcher.Constraint("Vertical", 18, 3, 27, 3),
    Sketcher.Constraint("Vertical", 28, 3, 30, 3),
    Sketcher.Constraint("Vertical", 29, 3, 32, 3),
    Sketcher.Constraint("Vertical", 30, 3, 33, 3),
    Sketcher.Constraint("Vertical", 36, 3, 38, 3),
    Sketcher.Constraint("Vertical", 34, 3, 40, 3),
    Sketcher.Constraint("Vertical", 37, 3, 41, 3),
    Sketcher.Constraint("Vertical", 38, 3, 42, 3),
    Sketcher.Constraint("Vertical", 33, 3, 43, 3),
    Sketcher.Constraint("Vertical", 32, 3, 44, 3),
    Sketcher.Constraint("Vertical", 43, 3, 45, 3),
    Sketcher.Constraint("Vertical", 31, 3, 46, 3),
    Sketcher.Constraint("Vertical", 40, 3, 47, 3),
    Sketcher.Constraint("Vertical", 35, 3, 48, 3),
    Sketcher.Constraint("Vertical", 42, 3, 49, 3),
    Sketcher.Constraint("Vertical", 41, 3, 50, 3),
    Sketcher.Constraint("Vertical", 49, 3, 51, 3),
    Sketcher.Constraint("Vertical", 39, 3, 52, 3),
    Sketcher.Constraint("Vertical", 20, 3, 53, 3),
    Sketcher.Constraint("Vertical", 23, 3, 54, 3),
    Sketcher.Constraint("Vertical", 24, 3, 55, 3),
    Sketcher.Constraint("Vertical", 26, 3, 56, 3),
    Sketcher.Constraint("Vertical", 54, 3, 57, 3),
    Sketcher.Constraint("Vertical", 53, 3, 58, 3),
    Sketcher.Constraint("Vertical", 55, 3, 59, 3),
    Sketcher.Constraint("Vertical", 22, 3, 60, 3),
    Sketcher.Constraint("Vertical", 57, 3, 61, 3),
    Sketcher.Constraint("Vertical", 58, 3, 62, 3),
    Sketcher.Constraint("Vertical", 61, 3, 63, 3),
    Sketcher.Constraint("Vertical", 25, 3, 64, 3),
    Sketcher.Constraint("Vertical", 59, 3, 65, 3),
    Sketcher.Constraint("Vertical", 56, 3, 66, 3),
    Sketcher.Constraint("Vertical", 27, 3, 67, 3),
    Sketcher.Constraint("Vertical", 66, 3, 68, 3),
    Sketcher.Constraint("Vertical", 45, 3, 69, 3),
    Sketcher.Constraint("Vertical", 44, 3, 70, 3),
    Sketcher.Constraint("Vertical", 47, 3, 71, 3),
    Sketcher.Constraint("Vertical", 51, 3, 72, 3),
    Sketcher.Constraint("Vertical", 50, 3, 73, 3),
    Sketcher.Constraint("Vertical", 69, 3, 74, 3),
    Sketcher.Constraint("Vertical", 70, 3, 75, 3),
    Sketcher.Constraint("Vertical", 74, 3, 76, 3),
    Sketcher.Constraint("Vertical", 46, 3, 77, 3),
    Sketcher.Constraint("Vertical", 76, 3, 78, 3),
    Sketcher.Constraint("Vertical", 75, 3, 79, 3),
    Sketcher.Constraint("Vertical", 71, 3, 80, 3),
    Sketcher.Constraint("Vertical", 72, 3, 81, 3),
    Sketcher.Constraint("Vertical", 73, 3, 82, 3),
    Sketcher.Constraint("Vertical", 48, 3, 83, 3),
    Sketcher.Constraint("Vertical", 80, 3, 84, 3),
    Sketcher.Constraint("Vertical", 81, 3, 85, 3),
    Sketcher.Constraint("Vertical", 52, 3, 86, 3),
    Sketcher.Constraint("Vertical", 85, 3, 87, 3),
    Sketcher.Constraint("Vertical", 82, 3, 88, 3),
    Sketcher.Constraint("Equal", 4, 2),
    Sketcher.Constraint("Diameter", 11, Q("8 mm")),
    Sketcher.Constraint("Radius", 1, Q("5 mm")),
    Sketcher.Constraint("Diameter", 8, Q("3.7 mm")),
    Sketcher.Constraint("DistanceX", 0, 2, 0, 1, Q("86 mm")),
    Sketcher.Constraint("DistanceX", -1, 1, 9, 3, Q("16 mm")),
    Sketcher.Constraint("DistanceY", -1, 1, 9, 3, Q("8 mm")),
    Sketcher.Constraint("DistanceX", -1, 1, 10, 3, Q("8 mm")),
    Sketcher.Constraint("DistanceY", -1, 1, 10, 3, Q("16 mm")),
    Sketcher.Constraint("DistanceX", -1, 1, 13, 3, Q("24 mm")),
    Sketcher.Constraint("DistanceY", -1, 1, 15, 3, Q("24 mm")),
    Sketcher.Constraint("DistanceX", -1, 1, 18, 3, Q("40 mm")),
    Sketcher.Constraint("DistanceY", -1, 1, 21, 3, Q("40 mm")),
    Sketcher.Constraint("DistanceY", -1, 1, 22, 3, Q("48 mm")),
    Sketcher.Constraint("DistanceX", -1, 1, 28, 3, Q("48 mm")),
    Sketcher.Constraint("DistanceX", -1, 1, 31, 3, Q("56 mm")),
    Sketcher.Constraint("DistanceX", -1, 1, 35, 3, Q("72 mm")),
    Sketcher.Constraint("DistanceX", -1, 1, 36, 3, Q("80 mm")),
    Sketcher.Constraint("DistanceX", -1, 1, 39, 3, Q("88 mm")),
    Sketcher.Constraint("DistanceY", -1, 1, 54, 3, Q("56 mm")),
    Sketcher.Constraint("DistanceY", -1, 1, 57, 3, Q("72 mm")),
    Sketcher.Constraint("DistanceY", -1, 1, 60, 3, Q("80 mm")),
    Sketcher.Constraint("DistanceY", -1, 1, 63, 3, Q("88 mm")),
    Sketcher.Constraint("DistanceX", -1, 1, 8, 3, Q("10.343146 mm")),
    Sketcher.Constraint("DistanceY", -1, 1, 8, 3, Q("10.343146 mm")),
    Sketcher.Constraint("DistanceX", -1, 1, 12, 3, Q("21.656854 mm")),
    Sketcher.Constraint("DistanceY", -1, 1, 14, 3, Q("21.656854 mm")),
    Sketcher.Constraint("DistanceX", -1, 1, 17, 3, Q("42.343146 mm")),
    Sketcher.Constraint("DistanceY", -1, 1, 20, 3, Q("42.343146 mm")),
    Sketcher.Constraint("DistanceX", -1, 1, 29, 3, Q("53.656854 mm")),
    Sketcher.Constraint("DistanceX", -1, 1, 34, 3, Q("74.343146 mm")),
    Sketcher.Constraint("DistanceX", -1, 1, 37, 3, Q("85.656854 mm")),
    Sketcher.Constraint("DistanceY", -1, 1, 53, 3, Q("53.656854 mm")),
    Sketcher.Constraint("DistanceY", -1, 1, 58, 3, Q("74.343146 mm")),
    Sketcher.Constraint("DistanceY", -1, 1, 62, 3, Q("85.656854 mm")),
])
pad1 = body.newObject("PartDesign::Pad", "Pad")
pad1.Profile = sketch1
pad1.Length = 3

doc.recompute()
